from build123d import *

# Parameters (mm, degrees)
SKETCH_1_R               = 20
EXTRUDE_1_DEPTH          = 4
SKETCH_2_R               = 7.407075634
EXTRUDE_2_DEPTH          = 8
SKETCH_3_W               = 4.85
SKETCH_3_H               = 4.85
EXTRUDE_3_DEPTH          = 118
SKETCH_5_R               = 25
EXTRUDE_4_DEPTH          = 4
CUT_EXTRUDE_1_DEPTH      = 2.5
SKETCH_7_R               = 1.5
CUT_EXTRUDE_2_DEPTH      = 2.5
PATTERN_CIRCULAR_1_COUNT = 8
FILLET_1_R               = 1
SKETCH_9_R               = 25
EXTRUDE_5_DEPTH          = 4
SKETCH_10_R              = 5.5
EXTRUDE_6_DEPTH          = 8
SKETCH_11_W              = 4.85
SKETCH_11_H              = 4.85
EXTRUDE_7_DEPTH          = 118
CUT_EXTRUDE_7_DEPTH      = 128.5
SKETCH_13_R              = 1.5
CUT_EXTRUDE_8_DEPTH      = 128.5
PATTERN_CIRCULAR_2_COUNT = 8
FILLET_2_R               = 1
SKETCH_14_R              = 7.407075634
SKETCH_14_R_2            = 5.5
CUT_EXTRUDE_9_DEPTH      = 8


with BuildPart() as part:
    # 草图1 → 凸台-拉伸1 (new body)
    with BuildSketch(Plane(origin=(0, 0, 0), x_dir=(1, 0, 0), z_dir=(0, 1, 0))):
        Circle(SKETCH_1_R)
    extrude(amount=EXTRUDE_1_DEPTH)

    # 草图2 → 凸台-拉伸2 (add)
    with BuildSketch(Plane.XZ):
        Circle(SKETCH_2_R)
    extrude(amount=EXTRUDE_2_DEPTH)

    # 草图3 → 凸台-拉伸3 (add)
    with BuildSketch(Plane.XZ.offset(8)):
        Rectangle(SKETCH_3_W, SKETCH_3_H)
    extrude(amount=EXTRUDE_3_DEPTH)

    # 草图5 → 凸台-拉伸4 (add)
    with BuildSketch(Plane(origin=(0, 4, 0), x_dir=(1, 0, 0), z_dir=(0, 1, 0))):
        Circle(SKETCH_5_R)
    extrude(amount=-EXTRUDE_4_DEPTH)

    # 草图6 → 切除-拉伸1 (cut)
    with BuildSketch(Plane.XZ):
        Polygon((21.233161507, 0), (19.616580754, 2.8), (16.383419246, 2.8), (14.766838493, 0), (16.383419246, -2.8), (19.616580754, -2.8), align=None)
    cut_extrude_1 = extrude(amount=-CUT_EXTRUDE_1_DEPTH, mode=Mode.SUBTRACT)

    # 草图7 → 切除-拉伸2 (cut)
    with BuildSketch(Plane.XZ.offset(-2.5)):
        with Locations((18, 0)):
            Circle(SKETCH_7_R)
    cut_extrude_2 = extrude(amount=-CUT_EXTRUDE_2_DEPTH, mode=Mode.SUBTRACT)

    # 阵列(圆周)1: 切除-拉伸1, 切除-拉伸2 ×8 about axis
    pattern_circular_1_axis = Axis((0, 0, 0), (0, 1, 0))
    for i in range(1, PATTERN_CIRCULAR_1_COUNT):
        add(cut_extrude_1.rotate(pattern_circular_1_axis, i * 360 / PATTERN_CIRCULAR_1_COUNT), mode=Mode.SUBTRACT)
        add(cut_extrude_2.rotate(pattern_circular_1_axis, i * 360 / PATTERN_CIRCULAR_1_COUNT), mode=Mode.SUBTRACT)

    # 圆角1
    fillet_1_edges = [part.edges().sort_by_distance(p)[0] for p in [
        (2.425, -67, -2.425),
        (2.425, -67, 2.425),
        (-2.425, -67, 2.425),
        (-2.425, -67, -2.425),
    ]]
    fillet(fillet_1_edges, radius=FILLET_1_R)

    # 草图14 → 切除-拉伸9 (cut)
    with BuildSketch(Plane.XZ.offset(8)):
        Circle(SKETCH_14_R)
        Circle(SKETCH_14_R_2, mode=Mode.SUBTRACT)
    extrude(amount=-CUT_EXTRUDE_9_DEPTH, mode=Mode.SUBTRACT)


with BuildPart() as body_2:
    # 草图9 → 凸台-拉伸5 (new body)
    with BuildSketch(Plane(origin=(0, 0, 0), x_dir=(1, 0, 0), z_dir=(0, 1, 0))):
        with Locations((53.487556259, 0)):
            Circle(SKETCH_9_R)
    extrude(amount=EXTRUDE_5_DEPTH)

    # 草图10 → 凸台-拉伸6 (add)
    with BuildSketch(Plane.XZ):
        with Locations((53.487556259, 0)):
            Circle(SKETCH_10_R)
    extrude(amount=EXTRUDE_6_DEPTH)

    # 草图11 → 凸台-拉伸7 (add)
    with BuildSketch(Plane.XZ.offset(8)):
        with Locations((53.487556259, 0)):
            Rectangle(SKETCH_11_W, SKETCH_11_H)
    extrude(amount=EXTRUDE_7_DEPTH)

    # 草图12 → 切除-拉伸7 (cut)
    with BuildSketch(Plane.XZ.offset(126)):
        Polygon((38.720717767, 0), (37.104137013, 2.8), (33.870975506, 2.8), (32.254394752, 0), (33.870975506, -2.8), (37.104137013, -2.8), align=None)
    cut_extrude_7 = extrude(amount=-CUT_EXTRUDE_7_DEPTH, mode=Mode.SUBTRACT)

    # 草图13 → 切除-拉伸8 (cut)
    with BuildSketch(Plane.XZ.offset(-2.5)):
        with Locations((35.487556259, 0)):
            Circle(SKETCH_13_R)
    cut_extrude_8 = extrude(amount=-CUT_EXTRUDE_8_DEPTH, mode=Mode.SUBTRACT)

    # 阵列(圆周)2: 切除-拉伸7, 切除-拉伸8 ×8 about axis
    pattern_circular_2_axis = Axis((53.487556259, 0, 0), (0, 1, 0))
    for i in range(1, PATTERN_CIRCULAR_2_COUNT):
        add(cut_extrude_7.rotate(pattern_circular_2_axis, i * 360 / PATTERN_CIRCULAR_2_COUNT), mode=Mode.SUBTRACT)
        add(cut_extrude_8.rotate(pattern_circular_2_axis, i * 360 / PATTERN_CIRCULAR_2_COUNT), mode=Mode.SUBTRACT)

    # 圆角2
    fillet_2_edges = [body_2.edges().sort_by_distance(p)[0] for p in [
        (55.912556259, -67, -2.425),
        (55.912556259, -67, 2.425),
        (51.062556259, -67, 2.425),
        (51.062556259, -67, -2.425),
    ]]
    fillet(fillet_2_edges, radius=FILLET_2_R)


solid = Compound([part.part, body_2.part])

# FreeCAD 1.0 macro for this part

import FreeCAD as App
import Part
import Sketcher

V = App.Vector
Q = App.Units.Quantity


def edges_at(feature, points):
    """Names of the edges that pass closest to the given points."""
    edges = feature.Shape.Edges
    near = lambda p: min(range(len(edges)), key=lambda i: edges[i].distToShape(Part.Vertex(*p))[0])
    return sorted({f"Edge{near(p) + 1}" for p in points})


def add_polygon(sketch, points):
    """Adds a closed chain of lines whose ends are joined by coincident constraints."""
    first, n = sketch.GeometryCount, len(points)
    for a, b in zip(points, points[1:] + points[:1]):
        sketch.addGeometry(Part.LineSegment(App.Vector(*a, 0), App.Vector(*b, 0)), False)
    for i in range(n):
        sketch.addConstraint(Sketcher.Constraint("Coincident", first + i, 2, first + (i + 1) % n, 1))

doc = App.newDocument("Part")
body = doc.addObject("PartDesign::Body", "Body")

sketch1 = doc.addObject("Sketcher::SketchObject", "Sketch")
body.addObject(sketch1)
sketch1.AttachmentSupport = (doc.XZ_Plane, [""])
sketch1.MapMode = "FlatFace"
sketch1.addGeometry(Part.Circle(V(0, 0, 0), V(0, 0, 1), 20), False)
sketch1.addConstraint(Sketcher.Constraint("Coincident", 0, 3, -1, 1))
sketch1.addConstraint(Sketcher.Constraint("Diameter", 0, 40.0))
pad1 = doc.addObject("PartDesign::Pad", "Pad")
body.addObject(pad1)
pad1.Profile = sketch1
pad1.Length = 4
pad1.Reversed = True

sketch2 = doc.addObject("Sketcher::SketchObject", "Sketch001")
body.addObject(sketch2)
sketch2.AttachmentSupport = (doc.XZ_Plane, [""])
sketch2.MapMode = "FlatFace"
sketch2.addGeometry(Part.Circle(V(0, 0, 0), V(0, 0, 1), 7), False)
sketch2.addConstraint(Sketcher.Constraint("Coincident", 0, 3, -1, 1))
sketch2.addConstraint(Sketcher.Constraint("Diameter", 0, 14.814151))
pad2 = doc.addObject("PartDesign::Pad", "Pad001")
body.addObject(pad2)
pad2.Profile = sketch2
pad2.Length = 8

sketch3 = doc.addObject("Sketcher::SketchObject", "Sketch002")
body.addObject(sketch3)
sketch3.AttachmentSupport = (doc.XZ_Plane, [""])
sketch3.MapMode = "FlatFace"
sketch3.AttachmentOffset = App.Placement(V(0, 0, 8), App.Rotation())
add_polygon(sketch3, [(-2.4, 2.4), (-2.4, -2.4), (2.4, -2.4), (2.4, 2.4)])
sketch3.addConstraint(Sketcher.Constraint("Vertical", 0))
sketch3.addConstraint(Sketcher.Constraint("Horizontal", 1))
sketch3.addConstraint(Sketcher.Constraint("Vertical", 2))
sketch3.addConstraint(Sketcher.Constraint("Horizontal", 3))
sketch3.addConstraint(Sketcher.Constraint("Symmetric", 0, 2, 2, 2, -1, 1))
sketch3.addConstraint(Sketcher.Constraint("Equal", 3, 0))
sketch3.addConstraint(Sketcher.Constraint("DistanceX", 1, 1, 1, 2, 4.85))
pad3 = doc.addObject("PartDesign::Pad", "Pad002")
body.addObject(pad3)
pad3.Profile = sketch3
pad3.Length = 118

sketch4 = doc.addObject("Sketcher::SketchObject", "Sketch003")
body.addObject(sketch4)
sketch4.AttachmentSupport = (doc.XZ_Plane, [""])
sketch4.MapMode = "FlatFace"
sketch4.AttachmentOffset = App.Placement(V(0, 0, -4), App.Rotation())
sketch4.addGeometry(Part.Circle(V(0, 0, 0), V(0, 0, 1), 25), False)
sketch4.addConstraint(Sketcher.Constraint("Coincident", 0, 3, -1, 1))
sketch4.addConstraint(Sketcher.Constraint("Diameter", 0, 50.0))
pad4 = doc.addObject("PartDesign::Pad", "Pad003")
body.addObject(pad4)
pad4.Profile = sketch4
pad4.Length = 4

sketch5 = doc.addObject("Sketcher::SketchObject", "Sketch004")
body.addObject(sketch5)
sketch5.AttachmentSupport = (doc.XZ_Plane, [""])
sketch5.MapMode = "FlatFace"
add_polygon(sketch5, [(21.2, 0), (19.6, 2.8), (16.4, 2.8), (14.8, 0), (16.4, -2.8), (19.6, -2.8)])
sketch5.addConstraint(Sketcher.Constraint("Horizontal", 1))
sketch5.addConstraint(Sketcher.Constraint("Horizontal", 4))
sketch5.addConstraint(Sketcher.Constraint("Symmetric", 1, 2, 3, 2, -1))
sketch5.addConstraint(Sketcher.Constraint("PointOnObject", 2, 2, -1))
sketch5.addConstraint(Sketcher.Constraint("PointOnObject", 5, 2, -1))
sketch5.addConstraint(Sketcher.Constraint("Parallel", 0, 3))
sketch5.addConstraint(Sketcher.Constraint("Parallel", 2, 5))
sketch5.addConstraint(Sketcher.Constraint("Angle", 0, Q("120 deg")))
sketch5.addConstraint(Sketcher.Constraint("DistanceY", -1, 1, 0, 2, 2.8))
sketch5.addConstraint(Sketcher.Constraint("DistanceX", 1, 2, 1, 1, 3.233162))
sketch5.addConstraint(Sketcher.Constraint("DistanceX", -1, 1, 0, 2, 19.616581))
pocket1 = doc.addObject("PartDesign::Pocket", "Pocket")
body.addObject(pocket1)
pocket1.Profile = sketch5
pocket1.Length = 2.5

sketch6 = doc.addObject("Sketcher::SketchObject", "Sketch005")
body.addObject(sketch6)
sketch6.AttachmentSupport = (doc.XZ_Plane, [""])
sketch6.MapMode = "FlatFace"
sketch6.AttachmentOffset = App.Placement(V(0, 0, -2.5), App.Rotation())
sketch6.addGeometry(Part.Circle(V(18, 0, 0), V(0, 0, 1), 1.5), False)
sketch6.addConstraint(Sketcher.Constraint("PointOnObject", 0, 3, -1))
sketch6.addConstraint(Sketcher.Constraint("Diameter", 0, 3.0))
sketch6.addConstraint(Sketcher.Constraint("DistanceX", -1, 1, 0, 3, 18.0))
pocket2 = doc.addObject("PartDesign::Pocket", "Pocket001")
body.addObject(pocket2)
pocket2.Profile = sketch6
pocket2.Length = 2.5
doc.recompute()

polarpattern = doc.addObject("PartDesign::PolarPattern", "PolarPattern")
body.addObject(polarpattern)
polarpattern.Originals = [pocket1, pocket2]
polarpattern.Axis = (doc.Y_Axis, [""])
polarpattern.Angle = 360
polarpattern.Occurrences = 8
body.Tip = polarpattern
doc.recompute()

fillet = doc.addObject("PartDesign::Fillet", "Fillet")
body.addObject(fillet)
fillet.Base = (polarpattern, edges_at(polarpattern, [
    (2.425, -67, -2.425),
    (2.425, -67, 2.425),
    (-2.425, -67, 2.425),
    (-2.425, -67, -2.425),
]))
fillet.Radius = 1

sketch7 = doc.addObject("Sketcher::SketchObject", "Sketch006")
body.addObject(sketch7)
sketch7.AttachmentSupport = (doc.XZ_Plane, [""])
sketch7.MapMode = "FlatFace"
sketch7.AttachmentOffset = App.Placement(V(0, 0, 8), App.Rotation())
sketch7.addGeometry(Part.Circle(V(0, 0, 0), V(0, 0, 1), 7), False)
sketch7.addGeometry(Part.Circle(V(0, 0, 0), V(0, 0, 1), 6), False)
sketch7.addConstraint(Sketcher.Constraint("Coincident", 0, 3, -1, 1))
sketch7.addConstraint(Sketcher.Constraint("Coincident", 1, 3, -1, 1))
sketch7.addConstraint(Sketcher.Constraint("Diameter", 1, 11.0))
sketch7.addConstraint(Sketcher.Constraint("Diameter", 0, 14.814151))
pocket3 = doc.addObject("PartDesign::Pocket", "Pocket002")
body.addObject(pocket3)
pocket3.Profile = sketch7
pocket3.Length = 8
body2 = doc.addObject("PartDesign::Body", "Body001")

sketch8 = doc.addObject("Sketcher::SketchObject", "Sketch007")
body2.addObject(sketch8)
sketch8.AttachmentSupport = (doc.getObject("XZ_Plane001"), [""])
sketch8.MapMode = "FlatFace"
sketch8.addGeometry(Part.Circle(V(53, 0, 0), V(0, 0, 1), 25), False)
sketch8.addConstraint(Sketcher.Constraint("PointOnObject", 0, 3, -1))
sketch8.addConstraint(Sketcher.Constraint("Diameter", 0, 50.0))
sketch8.addConstraint(Sketcher.Constraint("DistanceX", -1, 1, 0, 3, 53.487556))
pad5 = doc.addObject("PartDesign::Pad", "Pad004")
body2.addObject(pad5)
pad5.Profile = sketch8
pad5.Length = 4
pad5.Reversed = True

sketch9 = doc.addObject("Sketcher::SketchObject", "Sketch008")
body2.addObject(sketch9)
sketch9.AttachmentSupport = (doc.getObject("XZ_Plane001"), [""])
sketch9.MapMode = "FlatFace"
sketch9.addGeometry(Part.Circle(V(53, 0, 0), V(0, 0, 1), 6), False)
sketch9.addConstraint(Sketcher.Constraint("PointOnObject", 0, 3, -1))
sketch9.addConstraint(Sketcher.Constraint("Diameter", 0, 11.0))
sketch9.addConstraint(Sketcher.Constraint("DistanceX", -1, 1, 0, 3, 53.487556))
pad6 = doc.addObject("PartDesign::Pad", "Pad005")
body2.addObject(pad6)
pad6.Profile = sketch9
pad6.Length = 8

sketch10 = doc.addObject("Sketcher::SketchObject", "Sketch009")
body2.addObject(sketch10)
sketch10.AttachmentSupport = (doc.getObject("XZ_Plane001"), [""])
sketch10.MapMode = "FlatFace"
sketch10.AttachmentOffset = App.Placement(V(0, 0, 8), App.Rotation())
add_polygon(sketch10, [(51.1, 2.4), (51.1, -2.4), (55.9, -2.4), (55.9, 2.4)])
sketch10.addConstraint(Sketcher.Constraint("Vertical", 0))
sketch10.addConstraint(Sketcher.Constraint("Horizontal", 1))
sketch10.addConstraint(Sketcher.Constraint("Vertical", 2))
sketch10.addConstraint(Sketcher.Constraint("Horizontal", 3))
sketch10.addConstraint(Sketcher.Constraint("Equal", 3, 0))
sketch10.addConstraint(Sketcher.Constraint("DistanceX", 1, 1, 1, 2, 4.85))
sketch10.addConstraint(Sketcher.Constraint("DistanceY", 0, 2, -1, 1, 2.425))
sketch10.addConstraint(Sketcher.Constraint("DistanceX", -1, 1, 0, 2, 51.062556))
pad7 = doc.addObject("PartDesign::Pad", "Pad006")
body2.addObject(pad7)
pad7.Profile = sketch10
pad7.Length = 118

sketch11 = doc.addObject("Sketcher::SketchObject", "Sketch010")
body2.addObject(sketch11)
sketch11.AttachmentSupport = (doc.getObject("XZ_Plane001"), [""])
sketch11.MapMode = "FlatFace"
sketch11.AttachmentOffset = App.Placement(V(0, 0, 126), App.Rotation())
add_polygon(sketch11, [(38.7, 0), (37.1, 2.8), (33.9, 2.8), (32.3, 0), (33.9, -2.8), (37.1, -2.8)])
sketch11.addConstraint(Sketcher.Constraint("Horizontal", 1))
sketch11.addConstraint(Sketcher.Constraint("Horizontal", 4))
sketch11.addConstraint(Sketcher.Constraint("Symmetric", 1, 2, 3, 2, -1))
sketch11.addConstraint(Sketcher.Constraint("PointOnObject", 2, 2, -1))
sketch11.addConstraint(Sketcher.Constraint("PointOnObject", 5, 2, -1))
sketch11.addConstraint(Sketcher.Constraint("Parallel", 0, 3))
sketch11.addConstraint(Sketcher.Constraint("Parallel", 2, 5))
sketch11.addConstraint(Sketcher.Constraint("Angle", 0, Q("120 deg")))
sketch11.addConstraint(Sketcher.Constraint("DistanceY", -1, 1, 0, 2, 2.8))
sketch11.addConstraint(Sketcher.Constraint("DistanceX", 1, 2, 1, 1, 3.233162))
sketch11.addConstraint(Sketcher.Constraint("DistanceX", -1, 1, 0, 2, 37.104137))
pocket4 = doc.addObject("PartDesign::Pocket", "Pocket003")
body2.addObject(pocket4)
pocket4.Profile = sketch11
pocket4.Length = 128.5

sketch12 = doc.addObject("Sketcher::SketchObject", "Sketch011")
body2.addObject(sketch12)
sketch12.AttachmentSupport = (doc.getObject("XZ_Plane001"), [""])
sketch12.MapMode = "FlatFace"
sketch12.AttachmentOffset = App.Placement(V(0, 0, -2.5), App.Rotation())
sketch12.addGeometry(Part.Circle(V(35.5, 0, 0), V(0, 0, 1), 1.5), False)
sketch12.addConstraint(Sketcher.Constraint("PointOnObject", 0, 3, -1))
sketch12.addConstraint(Sketcher.Constraint("Diameter", 0, 3.0))
sketch12.addConstraint(Sketcher.Constraint("DistanceX", -1, 1, 0, 3, 35.487556))
pocket5 = doc.addObject("PartDesign::Pocket", "Pocket004")
body2.addObject(pocket5)
pocket5.Profile = sketch12
pocket5.Length = 128.5
doc.recompute()

datumline = doc.addObject("PartDesign::Line", "DatumLine")
body2.addObject(datumline)
datumline.Placement = App.Placement(V(53.487556, 0, 0), App.Rotation(V(0, 0, 1), V(0, 1, 0)))
polarpattern2 = doc.addObject("PartDesign::PolarPattern", "PolarPattern001")
body2.addObject(polarpattern2)
polarpattern2.Originals = [pocket4, pocket5]
polarpattern2.Axis = (datumline, [""])
polarpattern2.Angle = 360
polarpattern2.Occurrences = 8
body2.Tip = polarpattern2
doc.recompute()

fillet2 = doc.addObject("PartDesign::Fillet", "Fillet001")
body2.addObject(fillet2)
fillet2.Base = (polarpattern2, edges_at(polarpattern2, [
    (55.913, -67, -2.425),
    (55.913, -67, 2.425),
    (51.063, -67, 2.425),
    (51.063, -67, -2.425),
]))
fillet2.Radius = 1

doc.recompute()
